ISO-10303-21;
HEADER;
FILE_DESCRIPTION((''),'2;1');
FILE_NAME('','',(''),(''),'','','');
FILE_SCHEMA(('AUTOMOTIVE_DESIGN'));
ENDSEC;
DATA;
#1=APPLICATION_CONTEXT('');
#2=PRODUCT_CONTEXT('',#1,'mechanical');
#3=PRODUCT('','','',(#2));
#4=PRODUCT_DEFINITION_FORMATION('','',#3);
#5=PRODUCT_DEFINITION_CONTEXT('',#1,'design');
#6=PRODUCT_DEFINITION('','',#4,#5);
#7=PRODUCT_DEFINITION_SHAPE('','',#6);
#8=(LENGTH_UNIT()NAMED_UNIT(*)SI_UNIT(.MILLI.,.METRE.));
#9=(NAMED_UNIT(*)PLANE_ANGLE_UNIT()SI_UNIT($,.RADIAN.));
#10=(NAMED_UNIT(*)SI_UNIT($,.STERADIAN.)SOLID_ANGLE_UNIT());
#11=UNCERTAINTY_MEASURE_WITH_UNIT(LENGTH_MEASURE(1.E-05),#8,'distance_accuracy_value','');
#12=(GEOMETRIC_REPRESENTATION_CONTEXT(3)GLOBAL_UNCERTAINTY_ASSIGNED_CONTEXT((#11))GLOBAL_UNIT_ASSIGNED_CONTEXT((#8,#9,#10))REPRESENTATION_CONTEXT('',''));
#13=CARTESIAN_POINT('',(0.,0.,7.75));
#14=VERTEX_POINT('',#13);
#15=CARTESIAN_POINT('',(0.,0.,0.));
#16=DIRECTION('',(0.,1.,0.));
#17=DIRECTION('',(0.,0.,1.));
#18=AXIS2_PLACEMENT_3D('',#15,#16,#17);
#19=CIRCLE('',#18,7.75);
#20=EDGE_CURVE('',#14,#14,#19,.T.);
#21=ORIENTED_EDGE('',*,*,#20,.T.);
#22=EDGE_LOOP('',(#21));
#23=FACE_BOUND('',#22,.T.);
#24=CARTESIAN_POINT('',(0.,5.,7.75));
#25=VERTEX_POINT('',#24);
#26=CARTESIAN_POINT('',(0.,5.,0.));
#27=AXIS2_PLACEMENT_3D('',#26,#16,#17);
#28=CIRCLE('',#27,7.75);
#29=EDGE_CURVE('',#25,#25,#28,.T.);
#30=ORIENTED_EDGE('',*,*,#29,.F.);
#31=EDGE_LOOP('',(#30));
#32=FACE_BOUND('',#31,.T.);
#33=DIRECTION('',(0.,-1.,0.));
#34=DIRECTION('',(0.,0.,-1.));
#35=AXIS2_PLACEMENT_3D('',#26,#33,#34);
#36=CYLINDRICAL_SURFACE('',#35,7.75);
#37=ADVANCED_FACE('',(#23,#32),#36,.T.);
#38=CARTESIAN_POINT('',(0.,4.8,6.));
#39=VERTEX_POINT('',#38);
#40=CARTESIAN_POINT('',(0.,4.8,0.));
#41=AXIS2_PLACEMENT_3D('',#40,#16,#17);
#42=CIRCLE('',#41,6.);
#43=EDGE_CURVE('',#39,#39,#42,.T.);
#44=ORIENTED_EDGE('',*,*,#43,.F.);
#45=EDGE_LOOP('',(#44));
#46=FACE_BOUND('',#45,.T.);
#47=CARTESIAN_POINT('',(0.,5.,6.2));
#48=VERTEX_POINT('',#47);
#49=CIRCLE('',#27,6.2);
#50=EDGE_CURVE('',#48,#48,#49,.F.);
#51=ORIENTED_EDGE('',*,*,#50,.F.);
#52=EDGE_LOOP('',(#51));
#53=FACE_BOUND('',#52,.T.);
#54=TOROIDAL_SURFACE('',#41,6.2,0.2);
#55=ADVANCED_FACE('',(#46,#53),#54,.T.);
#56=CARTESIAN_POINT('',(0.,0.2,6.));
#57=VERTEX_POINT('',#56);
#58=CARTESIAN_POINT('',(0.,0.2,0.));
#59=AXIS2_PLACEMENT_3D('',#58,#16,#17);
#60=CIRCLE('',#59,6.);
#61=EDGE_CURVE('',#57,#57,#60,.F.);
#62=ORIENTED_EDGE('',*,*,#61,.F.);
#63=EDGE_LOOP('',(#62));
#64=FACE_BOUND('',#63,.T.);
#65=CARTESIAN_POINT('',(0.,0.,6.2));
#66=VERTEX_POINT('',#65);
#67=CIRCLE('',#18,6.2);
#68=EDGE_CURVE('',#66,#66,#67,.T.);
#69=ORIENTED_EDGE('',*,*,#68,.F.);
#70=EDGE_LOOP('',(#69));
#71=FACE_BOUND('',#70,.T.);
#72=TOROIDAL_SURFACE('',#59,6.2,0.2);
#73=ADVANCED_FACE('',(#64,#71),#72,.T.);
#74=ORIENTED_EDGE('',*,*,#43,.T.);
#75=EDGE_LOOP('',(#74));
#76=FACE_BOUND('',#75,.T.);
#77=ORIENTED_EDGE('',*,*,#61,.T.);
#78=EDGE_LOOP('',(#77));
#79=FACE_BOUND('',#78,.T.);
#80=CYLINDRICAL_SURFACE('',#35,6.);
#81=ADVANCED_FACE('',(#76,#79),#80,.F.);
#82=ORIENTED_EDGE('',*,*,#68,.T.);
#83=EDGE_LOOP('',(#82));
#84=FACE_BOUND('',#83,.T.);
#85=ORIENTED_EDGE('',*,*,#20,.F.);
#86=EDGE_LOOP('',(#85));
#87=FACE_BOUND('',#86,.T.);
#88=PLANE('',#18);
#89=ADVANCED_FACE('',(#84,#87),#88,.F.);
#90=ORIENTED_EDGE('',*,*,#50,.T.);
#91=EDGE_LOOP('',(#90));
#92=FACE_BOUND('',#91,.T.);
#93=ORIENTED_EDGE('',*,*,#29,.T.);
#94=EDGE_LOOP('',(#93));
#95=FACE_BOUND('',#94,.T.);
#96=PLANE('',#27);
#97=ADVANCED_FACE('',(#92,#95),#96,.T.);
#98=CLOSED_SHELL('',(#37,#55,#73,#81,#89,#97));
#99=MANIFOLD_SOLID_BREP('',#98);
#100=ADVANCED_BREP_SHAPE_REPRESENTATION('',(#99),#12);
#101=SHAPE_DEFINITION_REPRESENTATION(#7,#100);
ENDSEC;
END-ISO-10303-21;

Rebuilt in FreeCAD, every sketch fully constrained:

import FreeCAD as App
import Part
import Sketcher

V = App.Vector


def edges_at(feature, points):
    """Names of the edges that pass closest to the given points."""
    edges = feature.Shape.Edges
    near = lambda p: min(range(len(edges)), key=lambda i: edges[i].distToShape(Part.Vertex(*p))[0])
    return sorted({f"Edge{near(p) + 1}" for p in points})

doc = App.newDocument("Part")
params = doc.addObject("Spreadsheet::Sheet", "Params")
for row, (alias, value) in enumerate([
    ("sketch1_diameter", "12 mm"),
    ("sketch1_diameter2", "15.5 mm"),
    ("pad1_length", "5 mm"),
    ("fillet_radius", "0.2 mm"),
], start=1):
    params.set(f"A{row}", alias)
    params.set(f"B{row}", "=" + value)
    params.setAlias(f"B{row}", alias)

body = doc.addObject("PartDesign::Body", "Body")

# Sketch on XZ plane
sketch1 = body.newObject("Sketcher::SketchObject", "Sketch")
sketch1.AttachmentSupport = (doc.getObject("XZ_Plane"), [""])
sketch1.MapMode = "FlatFace"
sketch1.addGeometry([
    Part.Circle(V(0, 0, 0), V(0, 0, 1), 8),
    Part.Circle(V(0, 0, 0), V(0, 0, 1), 6),
], False)
sketch1.addConstraint([
    Sketcher.Constraint("Coincident", 0, 3, -1, 1),
    Sketcher.Constraint("Coincident", 1, 3, -1, 1),
    Sketcher.Constraint("Diameter", 1, 12.0),
    Sketcher.Constraint("Diameter", 0, 15.5),
])
sketch1.setExpression("Constraints[2]", "Params.sketch1_diameter")
sketch1.setExpression("Constraints[3]", "Params.sketch1_diameter2")
pad1 = body.newObject("PartDesign::Pad", "Pad")
pad1.Profile = sketch1
pad1.setExpression("Length", "Params.pad1_length")
pad1.Reversed = True
doc.recompute()

fillet = body.newObject("PartDesign::Fillet", "Fillet")
fillet.Base = (pad1, edges_at(pad1, [(-6, 0, 0), (-6, 5, 0)]))
fillet.setExpression("Radius", "Params.fillet_radius")

doc.recompute()
